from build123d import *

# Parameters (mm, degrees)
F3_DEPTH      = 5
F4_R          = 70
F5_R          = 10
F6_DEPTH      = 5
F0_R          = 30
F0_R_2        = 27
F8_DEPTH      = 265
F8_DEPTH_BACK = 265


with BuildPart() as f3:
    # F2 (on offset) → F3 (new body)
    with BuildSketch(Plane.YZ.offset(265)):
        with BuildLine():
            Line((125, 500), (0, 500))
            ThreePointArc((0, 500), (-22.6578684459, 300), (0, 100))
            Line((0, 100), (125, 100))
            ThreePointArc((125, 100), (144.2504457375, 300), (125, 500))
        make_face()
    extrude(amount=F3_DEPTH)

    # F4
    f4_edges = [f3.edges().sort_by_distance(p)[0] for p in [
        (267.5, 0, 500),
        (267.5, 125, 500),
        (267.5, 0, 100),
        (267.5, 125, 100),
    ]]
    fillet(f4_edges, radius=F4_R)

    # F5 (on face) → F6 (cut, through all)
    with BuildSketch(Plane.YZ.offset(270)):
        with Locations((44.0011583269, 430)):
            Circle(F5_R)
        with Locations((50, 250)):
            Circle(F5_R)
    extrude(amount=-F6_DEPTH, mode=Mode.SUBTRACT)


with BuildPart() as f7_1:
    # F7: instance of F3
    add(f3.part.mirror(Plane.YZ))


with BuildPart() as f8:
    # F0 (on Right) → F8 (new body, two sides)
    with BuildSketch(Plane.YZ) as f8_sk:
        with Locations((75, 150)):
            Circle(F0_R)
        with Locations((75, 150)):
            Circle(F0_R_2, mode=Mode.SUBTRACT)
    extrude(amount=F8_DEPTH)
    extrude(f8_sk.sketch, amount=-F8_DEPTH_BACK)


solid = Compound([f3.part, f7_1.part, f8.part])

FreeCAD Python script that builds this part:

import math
import FreeCAD as App
import Part
import Sketcher
Q = App.Units.Quantity


def edges_at(feature, points):
    """Names of the edges that pass closest to the given points."""
    edges = feature.Shape.Edges
    near = lambda p: min(range(len(edges)), key=lambda i: edges[i].distToShape(Part.Vertex(*p))[0])
    return sorted({f"Edge{near(p) + 1}" for p in points})

doc = App.newDocument("Part")
params = doc.addObject("Spreadsheet::Sheet", "Params")
for row, (alias, value) in enumerate([
    ("sketch1_width", "125 mm"),
    ("pad1_length", "5 mm"),
    ("fillet_radius", "70 mm"),
    ("sketch2_diameter", "20 mm"),
    ("sketch3_diameter", "60 mm"),
    ("sketch3_diameter2", "54 mm"),
    ("pad2_length", "265 mm"),
    ("pad2_length2", "265 mm"),
], start=1):
    params.set(f"A{row}", alias)
    params.set(f"B{row}", "=" + value)
    params.setAlias(f"B{row}", alias)

body = doc.addObject("PartDesign::Body", "Body")

# Sketch on YZ plane
sketch1 = body.newObject("Sketcher::SketchObject", "Sketch")
sketch1.AttachmentSupport = (doc.getObject("YZ_Plane"), [""])
sketch1.MapMode = "FlatFace"
sketch1.AttachmentOffset = App.Placement(App.Vector(0, 0, 265), App.Rotation())
sketch1.addGeometry([
    Part.LineSegment(App.Vector(125, 500, 0), App.Vector(0, 500, 0)),
    Part.ArcOfCircle(Part.Circle(App.Vector(871.366631, 300, 0), App.Vector(0, 0, 1), 894.0245), math.radians(167.073113), math.radians(192.926887)),
    Part.LineSegment(App.Vector(0, 100, 0), App.Vector(125, 100, 0)),
    Part.ArcOfCircle(Part.Circle(App.Vector(-904.311759, 300, 0), App.Vector(0, 0, 1), 1048.562205), math.radians(-10.99582), math.radians(10.99582)),
], False)
sketch1.addConstraint([
    Sketcher.Constraint("Coincident", 0, 2, 1, 1),
    Sketcher.Constraint("Coincident", 1, 2, 2, 1),
    Sketcher.Constraint("Coincident", 2, 2, 3, 1),
    Sketcher.Constraint("Coincident", 3, 2, 0, 1),
    Sketcher.Constraint("Horizontal", 0),
    Sketcher.Constraint("Horizontal", 2),
    Sketcher.Constraint("PointOnObject", 0, 2, -2),
    Sketcher.Constraint("PointOnObject", 1, 2, -2),
    Sketcher.Constraint("Horizontal", 1, 3, 3, 3),
    Sketcher.Constraint("DistanceX", 0, 2, 0, 1, Q("125 mm")),
    Sketcher.Constraint("DistanceY", -1, 1, 1, 3, Q("300 mm")),
    Sketcher.Constraint("DistanceY", -1, 1, 0, 2, Q("500 mm")),
    Sketcher.Constraint("Radius", 1, Q("894.0245 mm")),
    Sketcher.Constraint("Radius", 3, Q("1048.562205 mm")),
])
sketch1.setExpression("Constraints[9]", "Params.sketch1_width")
pad1 = body.newObject("PartDesign::Pad", "Pad")
pad1.Profile = sketch1
pad1.setExpression("Length", "Params.pad1_length")
doc.recompute()

fillet = body.newObject("PartDesign::Fillet", "Fillet")
fillet.Base = (pad1, edges_at(pad1, [
    (267.5, 0, 500),
    (267.5, 125, 500),
    (267.5, 0, 100),
    (267.5, 125, 100),
]))
fillet.setExpression("Radius", "Params.fillet_radius")

# Sketch on YZ plane
sketch2 = body.newObject("Sketcher::SketchObject", "Sketch001")
sketch2.AttachmentSupport = (doc.getObject("YZ_Plane"), [""])
sketch2.MapMode = "FlatFace"
sketch2.AttachmentOffset = App.Placement(App.Vector(0, 0, 270), App.Rotation())
sketch2.addGeometry([
    Part.Circle(App.Vector(44.001158, 430, 0), App.Vector(0, 0, 1), 10),
    Part.Circle(App.Vector(50, 250, 0), App.Vector(0, 0, 1), 10),
], False)
sketch2.addConstraint([
    Sketcher.Constraint("Equal", 0, 1),
    Sketcher.Constraint("Diameter", 0, Q("20 mm")),
    Sketcher.Constraint("DistanceY", -1, 1, 0, 3, Q("430 mm")),
    Sketcher.Constraint("DistanceX", -1, 1, 1, 3, Q("50 mm")),
    Sketcher.Constraint("DistanceY", -1, 1, 1, 3, Q("250 mm")),
    Sketcher.Constraint("DistanceX", -1, 1, 0, 3, Q("44.001158 mm")),
])
sketch2.setExpression("Constraints[1]", "Params.sketch2_diameter")
pocket1 = body.newObject("PartDesign::Pocket", "Pocket")
pocket1.Profile = sketch2
pocket1.Type = "ThroughAll"
body2 = doc.addObject("PartDesign::Body", "Body001")
doc.recompute()

mirroring = doc.addObject("Part::Mirroring", "Mirroring")
mirroring.Source = body
mirroring.Base = App.Vector(0, 0, 0)
mirroring.Normal = App.Vector(1, 0, 0)
body2.BaseFeature = mirroring
doc.recompute()
body3 = doc.addObject("PartDesign::Body", "Body002")

# Sketch on YZ plane
sketch3 = body3.newObject("Sketcher::SketchObject", "Sketch002")
sketch3.AttachmentSupport = (doc.getObject("YZ_Plane002"), [""])
sketch3.MapMode = "FlatFace"
sketch3.addGeometry([
    Part.Circle(App.Vector(75, 150, 0), App.Vector(0, 0, 1), 30),
    Part.Circle(App.Vector(75, 150, 0), App.Vector(0, 0, 1), 27),
], False)
sketch3.addConstraint([
    Sketcher.Constraint("Coincident", 1, 3, 0, 3),
    Sketcher.Constraint("Diameter", 0, Q("60 mm")),
    Sketcher.Constraint("Diameter", 1, Q("54 mm")),
    Sketcher.Constraint("DistanceX", -1, 1, 0, 3, Q("75 mm")),
    Sketcher.Constraint("DistanceY", -1, 1, 0, 3, Q("150 mm")),
])
sketch3.setExpression("Constraints[1]", "Params.sketch3_diameter")
sketch3.setExpression("Constraints[2]", "Params.sketch3_diameter2")
pad2 = body3.newObject("PartDesign::Pad", "Pad001")
pad2.Profile = sketch3
pad2.Type = "TwoLengths"
pad2.setExpression("Length", "Params.pad2_length")
pad2.setExpression("Length2", "Params.pad2_length2")
mirroring.Visibility = False

doc.recompute()
